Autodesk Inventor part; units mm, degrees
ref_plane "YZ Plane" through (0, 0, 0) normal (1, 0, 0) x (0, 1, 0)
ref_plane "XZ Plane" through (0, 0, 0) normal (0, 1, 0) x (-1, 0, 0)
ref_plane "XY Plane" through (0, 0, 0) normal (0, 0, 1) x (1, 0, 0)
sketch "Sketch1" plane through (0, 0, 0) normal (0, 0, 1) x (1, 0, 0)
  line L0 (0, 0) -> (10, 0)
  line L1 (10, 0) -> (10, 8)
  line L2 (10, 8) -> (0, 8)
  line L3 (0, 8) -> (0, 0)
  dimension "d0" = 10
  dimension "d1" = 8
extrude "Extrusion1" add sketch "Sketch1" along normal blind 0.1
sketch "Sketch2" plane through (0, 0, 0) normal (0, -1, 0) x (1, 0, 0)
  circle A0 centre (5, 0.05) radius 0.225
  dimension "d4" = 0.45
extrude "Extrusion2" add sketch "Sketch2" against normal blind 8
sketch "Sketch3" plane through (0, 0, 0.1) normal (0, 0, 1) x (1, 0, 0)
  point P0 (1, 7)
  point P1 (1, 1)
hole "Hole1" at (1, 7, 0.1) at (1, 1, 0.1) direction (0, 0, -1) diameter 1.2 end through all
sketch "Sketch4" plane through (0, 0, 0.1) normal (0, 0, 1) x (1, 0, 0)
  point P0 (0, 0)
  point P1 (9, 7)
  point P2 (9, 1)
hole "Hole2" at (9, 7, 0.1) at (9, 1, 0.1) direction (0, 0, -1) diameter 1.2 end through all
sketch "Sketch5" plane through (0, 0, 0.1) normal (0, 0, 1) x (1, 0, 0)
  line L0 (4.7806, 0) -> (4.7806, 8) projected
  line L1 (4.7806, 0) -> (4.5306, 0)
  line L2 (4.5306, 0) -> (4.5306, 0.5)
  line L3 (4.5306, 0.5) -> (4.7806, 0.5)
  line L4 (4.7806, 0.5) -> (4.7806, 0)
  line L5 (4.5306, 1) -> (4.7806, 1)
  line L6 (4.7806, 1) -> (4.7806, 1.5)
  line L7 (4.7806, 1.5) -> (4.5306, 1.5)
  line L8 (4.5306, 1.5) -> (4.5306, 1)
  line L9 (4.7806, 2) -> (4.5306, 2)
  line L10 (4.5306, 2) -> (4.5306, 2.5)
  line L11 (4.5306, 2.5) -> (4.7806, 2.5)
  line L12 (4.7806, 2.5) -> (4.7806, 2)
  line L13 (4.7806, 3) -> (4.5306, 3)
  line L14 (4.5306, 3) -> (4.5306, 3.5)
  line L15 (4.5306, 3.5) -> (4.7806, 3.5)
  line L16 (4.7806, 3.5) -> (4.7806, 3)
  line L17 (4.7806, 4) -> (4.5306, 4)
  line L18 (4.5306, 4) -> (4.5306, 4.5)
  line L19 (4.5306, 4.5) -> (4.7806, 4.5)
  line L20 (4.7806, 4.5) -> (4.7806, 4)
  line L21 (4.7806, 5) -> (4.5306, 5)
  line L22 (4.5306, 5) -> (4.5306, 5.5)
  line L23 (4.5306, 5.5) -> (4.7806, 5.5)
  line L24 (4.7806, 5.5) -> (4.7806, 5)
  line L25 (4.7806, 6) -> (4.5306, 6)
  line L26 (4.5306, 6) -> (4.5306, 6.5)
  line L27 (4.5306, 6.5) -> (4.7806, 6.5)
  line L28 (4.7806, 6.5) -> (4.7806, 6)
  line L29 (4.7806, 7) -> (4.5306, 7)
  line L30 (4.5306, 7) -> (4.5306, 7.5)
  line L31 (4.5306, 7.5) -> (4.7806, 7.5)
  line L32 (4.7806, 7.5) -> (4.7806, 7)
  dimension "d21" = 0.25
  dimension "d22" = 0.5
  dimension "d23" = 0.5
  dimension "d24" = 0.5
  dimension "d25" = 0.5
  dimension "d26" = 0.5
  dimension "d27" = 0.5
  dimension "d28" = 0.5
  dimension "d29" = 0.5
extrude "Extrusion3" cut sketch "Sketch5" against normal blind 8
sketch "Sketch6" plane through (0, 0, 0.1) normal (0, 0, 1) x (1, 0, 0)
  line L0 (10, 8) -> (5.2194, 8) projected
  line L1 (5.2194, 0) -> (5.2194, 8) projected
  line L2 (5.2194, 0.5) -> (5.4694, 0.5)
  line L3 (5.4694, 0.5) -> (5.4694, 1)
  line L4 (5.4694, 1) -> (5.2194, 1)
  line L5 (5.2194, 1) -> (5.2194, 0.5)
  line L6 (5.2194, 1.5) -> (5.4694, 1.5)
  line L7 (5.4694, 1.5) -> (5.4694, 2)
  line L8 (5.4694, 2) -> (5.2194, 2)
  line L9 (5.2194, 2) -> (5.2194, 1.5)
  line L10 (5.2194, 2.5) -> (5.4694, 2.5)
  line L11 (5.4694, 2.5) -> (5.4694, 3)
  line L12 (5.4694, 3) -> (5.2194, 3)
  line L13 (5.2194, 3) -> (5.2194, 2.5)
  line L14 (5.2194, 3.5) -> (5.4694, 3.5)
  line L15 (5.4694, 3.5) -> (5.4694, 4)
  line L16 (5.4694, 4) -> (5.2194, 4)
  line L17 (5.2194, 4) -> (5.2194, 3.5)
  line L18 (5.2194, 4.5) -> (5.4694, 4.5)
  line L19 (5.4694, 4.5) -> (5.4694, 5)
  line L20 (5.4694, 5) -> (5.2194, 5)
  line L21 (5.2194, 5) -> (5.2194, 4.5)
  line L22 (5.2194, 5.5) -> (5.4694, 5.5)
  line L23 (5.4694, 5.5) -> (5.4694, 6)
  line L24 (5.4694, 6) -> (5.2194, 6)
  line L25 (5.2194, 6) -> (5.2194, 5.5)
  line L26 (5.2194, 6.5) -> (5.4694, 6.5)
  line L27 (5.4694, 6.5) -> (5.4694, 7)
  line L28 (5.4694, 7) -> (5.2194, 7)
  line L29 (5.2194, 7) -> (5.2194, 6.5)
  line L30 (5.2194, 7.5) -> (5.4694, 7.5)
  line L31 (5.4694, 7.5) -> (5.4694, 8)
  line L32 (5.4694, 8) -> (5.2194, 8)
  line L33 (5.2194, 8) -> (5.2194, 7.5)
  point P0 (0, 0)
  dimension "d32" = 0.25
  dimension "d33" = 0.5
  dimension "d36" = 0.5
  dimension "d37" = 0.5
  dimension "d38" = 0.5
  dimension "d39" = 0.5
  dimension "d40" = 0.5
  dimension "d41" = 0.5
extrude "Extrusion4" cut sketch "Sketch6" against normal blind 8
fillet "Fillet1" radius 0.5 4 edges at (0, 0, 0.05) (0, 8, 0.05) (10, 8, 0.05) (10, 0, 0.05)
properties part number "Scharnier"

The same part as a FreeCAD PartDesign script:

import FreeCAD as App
import Part
import Sketcher
Q = App.Units.Quantity


def edges_at(feature, points):
    """Names of the edges that pass closest to the given points."""
    edges = feature.Shape.Edges
    near = lambda p: min(range(len(edges)), key=lambda i: edges[i].distToShape(Part.Vertex(*p))[0])
    return sorted({f"Edge{near(p) + 1}" for p in points})

doc = App.newDocument("Part")
body = doc.addObject("PartDesign::Body", "Body")

# Sketch on XY plane
sketch1 = doc.addObject("Sketcher::SketchObject", "Sketch")
body.addObject(sketch1)
sketch1.AttachmentSupport = (doc.XY_Plane, [""])
sketch1.MapMode = "FlatFace"
sketch1.addGeometry([
    Part.LineSegment(App.Vector(0, 8, 0), App.Vector(0, 0, 0)),
    Part.LineSegment(App.Vector(0, 0, 0), App.Vector(10, 0, 0)),
    Part.LineSegment(App.Vector(10, 0, 0), App.Vector(10, 8, 0)),
    Part.LineSegment(App.Vector(10, 8, 0), App.Vector(0, 8, 0)),
], False)
sketch1.addConstraint([
    Sketcher.Constraint("Coincident", 0, 2, 1, 1),
    Sketcher.Constraint("Coincident", 1, 2, 2, 1),
    Sketcher.Constraint("Coincident", 2, 2, 3, 1),
    Sketcher.Constraint("Coincident", 3, 2, 0, 1),
    Sketcher.Constraint("Vertical", 0),
    Sketcher.Constraint("Horizontal", 1),
    Sketcher.Constraint("Vertical", 2),
    Sketcher.Constraint("Horizontal", 3),
    Sketcher.Constraint("Coincident", 0, 2, -1, 1),
    Sketcher.Constraint("DistanceX", 1, 1, 1, 2, Q("10 mm")),
    Sketcher.Constraint("DistanceY", 0, 2, 0, 1, Q("8 mm")),
])
pad1 = doc.addObject("PartDesign::Pad", "Pad")
body.addObject(pad1)
pad1.Profile = sketch1
pad1.Length = 0.1

# Sketch on XZ plane
sketch2 = doc.addObject("Sketcher::SketchObject", "Sketch001")
body.addObject(sketch2)
sketch2.AttachmentSupport = (doc.XZ_Plane, [""])
sketch2.MapMode = "FlatFace"
sketch2.addGeometry(Part.Circle(App.Vector(5, 0.05, 0), App.Vector(0, 0, 1), 0.225), False)
sketch2.addConstraint([
    Sketcher.Constraint("Diameter", 0, Q("0.45 mm")),
    Sketcher.Constraint("DistanceX", -1, 1, 0, 3, Q("5 mm")),
    Sketcher.Constraint("DistanceY", -1, 1, 0, 3, Q("0.05 mm")),
])
pad2 = doc.addObject("PartDesign::Pad", "Pad001")
body.addObject(pad2)
pad2.Profile = sketch2
pad2.Length = 8
pad2.Reversed = True

# Sketch on XY plane
sketch3 = doc.addObject("Sketcher::SketchObject", "Sketch002")
body.addObject(sketch3)
sketch3.AttachmentSupport = (doc.XY_Plane, [""])
sketch3.MapMode = "FlatFace"
sketch3.AttachmentOffset = App.Placement(App.Vector(0, 0, 0.1), App.Rotation())
sketch3.addGeometry([
    Part.Circle(App.Vector(1, 7, 0), App.Vector(0, 0, 1), 0.6),
    Part.Circle(App.Vector(1, 1, 0), App.Vector(0, 0, 1), 0.6),
], False)
sketch3.addConstraint([
    Sketcher.Constraint("Equal", 0, 1),
    Sketcher.Constraint("Vertical", 0, 3, 1, 3),
    Sketcher.Constraint("Diameter", 0, Q("1.2 mm")),
    Sketcher.Constraint("DistanceX", -1, 1, 0, 3, Q("1 mm")),
    Sketcher.Constraint("DistanceY", -1, 1, 0, 3, Q("7 mm")),
    Sketcher.Constraint("DistanceY", -1, 1, 1, 3, Q("1 mm")),
])
doc.recompute()
hole = doc.addObject("PartDesign::Hole", "Hole")
body.addObject(hole)
hole.Profile = sketch3
hole.ThreadType = "None"
hole.Diameter = 1.2
hole.DepthType = "ThroughAll"

# Sketch on XY plane
sketch4 = doc.addObject("Sketcher::SketchObject", "Sketch003")
body.addObject(sketch4)
sketch4.AttachmentSupport = (doc.XY_Plane, [""])
sketch4.MapMode = "FlatFace"
sketch4.AttachmentOffset = App.Placement(App.Vector(0, 0, 0.1), App.Rotation())
sketch4.addGeometry([
    Part.Circle(App.Vector(9, 7, 0), App.Vector(0, 0, 1), 0.6),
    Part.Circle(App.Vector(9, 1, 0), App.Vector(0, 0, 1), 0.6),
], False)
sketch4.addConstraint([
    Sketcher.Constraint("Equal", 0, 1),
    Sketcher.Constraint("Vertical", 0, 3, 1, 3),
    Sketcher.Constraint("Diameter", 0, Q("1.2 mm")),
    Sketcher.Constraint("DistanceX", -1, 1, 0, 3, Q("9 mm")),
    Sketcher.Constraint("DistanceY", -1, 1, 0, 3, Q("7 mm")),
    Sketcher.Constraint("DistanceY", -1, 1, 1, 3, Q("1 mm")),
])
doc.recompute()
hole2 = doc.addObject("PartDesign::Hole", "Hole001")
body.addObject(hole2)
hole2.Profile = sketch4
hole2.ThreadType = "None"
hole2.Diameter = 1.2
hole2.DepthType = "ThroughAll"

# Sketch on XY plane
sketch5 = doc.addObject("Sketcher::SketchObject", "Sketch004")
body.addObject(sketch5)
sketch5.AttachmentSupport = (doc.XY_Plane, [""])
sketch5.MapMode = "FlatFace"
sketch5.AttachmentOffset = App.Placement(App.Vector(0, 0, 0.1), App.Rotation())
sketch5.addGeometry([
    Part.LineSegment(App.Vector(4.5306, 0, 0), App.Vector(4.7806, 0, 0)),  # 0
    Part.LineSegment(App.Vector(4.7806, 0, 0), App.Vector(4.7806, 0.5, 0)),  # 1
    Part.LineSegment(App.Vector(4.7806, 0.5, 0), App.Vector(4.5306, 0.5, 0)),  # 2
    Part.LineSegment(App.Vector(4.5306, 0.5, 0), App.Vector(4.5306, 0, 0)),  # 3
    Part.LineSegment(App.Vector(4.5306, 7, 0), App.Vector(4.7806, 7, 0)),  # 4
    Part.LineSegment(App.Vector(4.7806, 7, 0), App.Vector(4.7806, 7.5, 0)),  # 5
    Part.LineSegment(App.Vector(4.7806, 7.5, 0), App.Vector(4.5306, 7.5, 0)),  # 6
    Part.LineSegment(App.Vector(4.5306, 7.5, 0), App.Vector(4.5306, 7, 0)),  # 7
    Part.LineSegment(App.Vector(4.5306, 6, 0), App.Vector(4.7806, 6, 0)),  # 8
    Part.LineSegment(App.Vector(4.7806, 6, 0), App.Vector(4.7806, 6.5, 0)),  # 9
    Part.LineSegment(App.Vector(4.7806, 6.5, 0), App.Vector(4.5306, 6.5, 0)),  # 10
    Part.LineSegment(App.Vector(4.5306, 6.5, 0), App.Vector(4.5306, 6, 0)),  # 11
    Part.LineSegment(App.Vector(4.5306, 5, 0), App.Vector(4.7806, 5, 0)),  # 12
    Part.LineSegment(App.Vector(4.7806, 5, 0), App.Vector(4.7806, 5.5, 0)),  # 13
    Part.LineSegment(App.Vector(4.7806, 5.5, 0), App.Vector(4.5306, 5.5, 0)),  # 14
    Part.LineSegment(App.Vector(4.5306, 5.5, 0), App.Vector(4.5306, 5, 0)),  # 15
    Part.LineSegment(App.Vector(4.5306, 4, 0), App.Vector(4.7806, 4, 0)),  # 16
    Part.LineSegment(App.Vector(4.7806, 4, 0), App.Vector(4.7806, 4.5, 0)),  # 17
    Part.LineSegment(App.Vector(4.7806, 4.5, 0), App.Vector(4.5306, 4.5, 0)),  # 18
    Part.LineSegment(App.Vector(4.5306, 4.5, 0), App.Vector(4.5306, 4, 0)),  # 19
    Part.LineSegment(App.Vector(4.5306, 3, 0), App.Vector(4.7806, 3, 0)),  # 20
    Part.LineSegment(App.Vector(4.7806, 3, 0), App.Vector(4.7806, 3.5, 0)),  # 21
    Part.LineSegment(App.Vector(4.7806, 3.5, 0), App.Vector(4.5306, 3.5, 0)),  # 22
    Part.LineSegment(App.Vector(4.5306, 3.5, 0), App.Vector(4.5306, 3, 0)),  # 23
    Part.LineSegment(App.Vector(4.5306, 2, 0), App.Vector(4.7806, 2, 0)),  # 24
    Part.LineSegment(App.Vector(4.7806, 2, 0), App.Vector(4.7806, 2.5, 0)),  # 25
    Part.LineSegment(App.Vector(4.7806, 2.5, 0), App.Vector(4.5306, 2.5, 0)),  # 26
    Part.LineSegment(App.Vector(4.5306, 2.5, 0), App.Vector(4.5306, 2, 0)),  # 27
    Part.LineSegment(App.Vector(4.5306, 1, 0), App.Vector(4.7806, 1, 0)),  # 28
    Part.LineSegment(App.Vector(4.7806, 1, 0), App.Vector(4.7806, 1.5, 0)),  # 29
    Part.LineSegment(App.Vector(4.7806, 1.5, 0), App.Vector(4.5306, 1.5, 0)),  # 30
    Part.LineSegment(App.Vector(4.5306, 1.5, 0), App.Vector(4.5306, 1, 0)),  # 31
], False)
sketch5.addConstraint([
    Sketcher.Constraint("Coincident", 0, 2, 1, 1),
    Sketcher.Constraint("Coincident", 1, 2, 2, 1),
    Sketcher.Constraint("Coincident", 2, 2, 3, 1),
    Sketcher.Constraint("Coincident", 3, 2, 0, 1),
    Sketcher.Constraint("Coincident", 4, 2, 5, 1),
    Sketcher.Constraint("Coincident", 5, 2, 6, 1),
    Sketcher.Constraint("Coincident", 6, 2, 7, 1),
    Sketcher.Constraint("Coincident", 7, 2, 4, 1),
    Sketcher.Constraint("Coincident", 8, 2, 9, 1),
    Sketcher.Constraint("Coincident", 9, 2, 10, 1),
    Sketcher.Constraint("Coincident", 10, 2, 11, 1),
    Sketcher.Constraint("Coincident", 11, 2, 8, 1),
    Sketcher.Constraint("Coincident", 12, 2, 13, 1),
    Sketcher.Constraint("Coincident", 13, 2, 14, 1),
    Sketcher.Constraint("Coincident", 14, 2, 15, 1),
    Sketcher.Constraint("Coincident", 15, 2, 12, 1),
    Sketcher.Constraint("Coincident", 16, 2, 17, 1),
    Sketcher.Constraint("Coincident", 17, 2, 18, 1),
    Sketcher.Constraint("Coincident", 18, 2, 19, 1),
    Sketcher.Constraint("Coincident", 19, 2, 16, 1),
    Sketcher.Constraint("Coincident", 20, 2, 21, 1),
    Sketcher.Constraint("Coincident", 21, 2, 22, 1),
    Sketcher.Constraint("Coincident", 22, 2, 23, 1),
    Sketcher.Constraint("Coincident", 23, 2, 20, 1),
    Sketcher.Constraint("Coincident", 24, 2, 25, 1),
    Sketcher.Constraint("Coincident", 25, 2, 26, 1),
    Sketcher.Constraint("Coincident", 26, 2, 27, 1),
    Sketcher.Constraint("Coincident", 27, 2, 24, 1),
    Sketcher.Constraint("Coincident", 28, 2, 29, 1),
    Sketcher.Constraint("Coincident", 29, 2, 30, 1),
    Sketcher.Constraint("Coincident", 30, 2, 31, 1),
    Sketcher.Constraint("Coincident", 31, 2, 28, 1),
    Sketcher.Constraint("Horizontal", 0),
    Sketcher.Constraint("Vertical", 1),
    Sketcher.Constraint("Horizontal", 2),
    Sketcher.Constraint("Vertical", 3),
    Sketcher.Constraint("Horizontal", 4),
    Sketcher.Constraint("Vertical", 5),
    Sketcher.Constraint("Horizontal", 6),
    Sketcher.Constraint("Vertical", 7),
    Sketcher.Constraint("Horizontal", 8),
    Sketcher.Constraint("Vertical", 9),
    Sketcher.Constraint("Horizontal", 10),
    Sketcher.Constraint("Vertical", 11),
    Sketcher.Constraint("Horizontal", 12),
    Sketcher.Constraint("Vertical", 13),
    Sketcher.Constraint("Horizontal", 14),
    Sketcher.Constraint("Vertical", 15),
    Sketcher.Constraint("Horizontal", 16),
    Sketcher.Constraint("Vertical", 17),
    Sketcher.Constraint("Horizontal", 18),
    Sketcher.Constraint("Vertical", 19),
    Sketcher.Constraint("Horizontal", 20),
    Sketcher.Constraint("Vertical", 21),
    Sketcher.Constraint("Horizontal", 22),
    Sketcher.Constraint("Vertical", 23),
    Sketcher.Constraint("Horizontal", 24),
    Sketcher.Constraint("Vertical", 25),
    Sketcher.Constraint("Horizontal", 26),
    Sketcher.Constraint("Vertical", 27),
    Sketcher.Constraint("Horizontal", 28),
    Sketcher.Constraint("Vertical", 29),
    Sketcher.Constraint("Horizontal", 30),
    Sketcher.Constraint("Vertical", 31),
    Sketcher.Constraint("PointOnObject", 0, 2, -1),
    Sketcher.Constraint("Vertical", 1, 2, 4, 2),
    Sketcher.Constraint("Vertical", 3, 2, 6, 2),
    Sketcher.Constraint("Vertical", 5, 2, 8, 2),
    Sketcher.Constraint("Vertical", 7, 2, 10, 2),
    Sketcher.Constraint("Vertical", 9, 2, 12, 2),
    Sketcher.Constraint("Vertical", 11, 2, 14, 2),
    Sketcher.Constraint("Vertical", 13, 2, 16, 2),
    Sketcher.Constraint("Vertical", 15, 2, 18, 2),
    Sketcher.Constraint("Vertical", 17, 2, 20, 2),
    Sketcher.Constraint("Vertical", 19, 2, 22, 2),
    Sketcher.Constraint("Vertical", 21, 2, 24, 2),
    Sketcher.Constraint("Vertical", 23, 2, 26, 2),
    Sketcher.Constraint("Vertical", 25, 2, 28, 2),
    Sketcher.Constraint("Vertical", 27, 2, 30, 2),
    Sketcher.Constraint("Equal", 3, 5),
    Sketcher.Constraint("Equal", 7, 9),
    Sketcher.Constraint("Equal", 11, 13),
    Sketcher.Constraint("Equal", 15, 17),
    Sketcher.Constraint("Equal", 19, 21),
    Sketcher.Constraint("Equal", 23, 25),
    Sketcher.Constraint("Equal", 27, 29),
    Sketcher.Constraint("DistanceY", 1, 1, 1, 2, Q("0.5 mm")),
    Sketcher.Constraint("DistanceX", 0, 1, 0, 2, Q("0.25 mm")),
    Sketcher.Constraint("DistanceY", 9, 2, 4, 2, Q("0.5 mm")),
    Sketcher.Constraint("DistanceY", 13, 2, 8, 2, Q("0.5 mm")),
    Sketcher.Constraint("DistanceY", 17, 2, 12, 2, Q("0.5 mm")),
    Sketcher.Constraint("DistanceY", 21, 2, 16, 2, Q("0.5 mm")),
    Sketcher.Constraint("DistanceY", 25, 2, 20, 2, Q("0.5 mm")),
    Sketcher.Constraint("DistanceY", 1, 2, 28, 2, Q("0.5 mm")),
    Sketcher.Constraint("DistanceY", 29, 2, 24, 2, Q("0.5 mm")),
    Sketcher.Constraint("DistanceX", -1, 1, 0, 2, Q("4.7806 mm")),
])
pocket1 = doc.addObject("PartDesign::Pocket", "Pocket")
body.addObject(pocket1)
pocket1.Profile = sketch5
pocket1.Length = 8

# Sketch on XY plane
sketch6 = doc.addObject("Sketcher::SketchObject", "Sketch005")
body.addObject(sketch6)
sketch6.AttachmentSupport = (doc.XY_Plane, [""])
sketch6.MapMode = "FlatFace"
sketch6.AttachmentOffset = App.Placement(App.Vector(0, 0, 0.1), App.Rotation())
sketch6.addGeometry([
    Part.LineSegment(App.Vector(5.4694, 7.5, 0), App.Vector(5.4694, 8, 0)),  # 0
    Part.LineSegment(App.Vector(5.4694, 8, 0), App.Vector(5.2194, 8, 0)),  # 1
    Part.LineSegment(App.Vector(5.2194, 8, 0), App.Vector(5.2194, 7.5, 0)),  # 2
    Part.LineSegment(App.Vector(5.2194, 7.5, 0), App.Vector(5.4694, 7.5, 0)),  # 3
    Part.LineSegment(App.Vector(5.4694, 1, 0), App.Vector(5.2194, 1, 0)),  # 4
    Part.LineSegment(App.Vector(5.2194, 1, 0), App.Vector(5.2194, 0.5, 0)),  # 5
    Part.LineSegment(App.Vector(5.2194, 0.5, 0), App.Vector(5.4694, 0.5, 0)),  # 6
    Part.LineSegment(App.Vector(5.4694, 0.5, 0), App.Vector(5.4694, 1, 0)),  # 7
    Part.LineSegment(App.Vector(5.4694, 2, 0), App.Vector(5.2194, 2, 0)),  # 8
    Part.LineSegment(App.Vector(5.2194, 2, 0), App.Vector(5.2194, 1.5, 0)),  # 9
    Part.LineSegment(App.Vector(5.2194, 1.5, 0), App.Vector(5.4694, 1.5, 0)),  # 10
    Part.LineSegment(App.Vector(5.4694, 1.5, 0), App.Vector(5.4694, 2, 0)),  # 11
    Part.LineSegment(App.Vector(5.4694, 3, 0), App.Vector(5.2194, 3, 0)),  # 12
    Part.LineSegment(App.Vector(5.2194, 3, 0), App.Vector(5.2194, 2.5, 0)),  # 13
    Part.LineSegment(App.Vector(5.2194, 2.5, 0), App.Vector(5.4694, 2.5, 0)),  # 14
    Part.LineSegment(App.Vector(5.4694, 2.5, 0), App.Vector(5.4694, 3, 0)),  # 15
    Part.LineSegment(App.Vector(5.4694, 4, 0), App.Vector(5.2194, 4, 0)),  # 16
    Part.LineSegment(App.Vector(5.2194, 4, 0), App.Vector(5.2194, 3.5, 0)),  # 17
    Part.LineSegment(App.Vector(5.2194, 3.5, 0), App.Vector(5.4694, 3.5, 0)),  # 18
    Part.LineSegment(App.Vector(5.4694, 3.5, 0), App.Vector(5.4694, 4, 0)),  # 19
    Part.LineSegment(App.Vector(5.4694, 5, 0), App.Vector(5.2194, 5, 0)),  # 20
    Part.LineSegment(App.Vector(5.2194, 5, 0), App.Vector(5.2194, 4.5, 0)),  # 21
    Part.LineSegment(App.Vector(5.2194, 4.5, 0), App.Vector(5.4694, 4.5, 0)),  # 22
    Part.LineSegment(App.Vector(5.4694, 4.5, 0), App.Vector(5.4694, 5, 0)),  # 23
    Part.LineSegment(App.Vector(5.4694, 6, 0), App.Vector(5.2194, 6, 0)),  # 24
    Part.LineSegment(App.Vector(5.2194, 6, 0), App.Vector(5.2194, 5.5, 0)),  # 25
    Part.LineSegment(App.Vector(5.2194, 5.5, 0), App.Vector(5.4694, 5.5, 0)),  # 26
    Part.LineSegment(App.Vector(5.4694, 5.5, 0), App.Vector(5.4694, 6, 0)),  # 27
    Part.LineSegment(App.Vector(5.4694, 7, 0), App.Vector(5.2194, 7, 0)),  # 28
    Part.LineSegment(App.Vector(5.2194, 7, 0), App.Vector(5.2194, 6.5, 0)),  # 29
    Part.LineSegment(App.Vector(5.2194, 6.5, 0), App.Vector(5.4694, 6.5, 0)),  # 30
    Part.LineSegment(App.Vector(5.4694, 6.5, 0), App.Vector(5.4694, 7, 0)),  # 31
], False)
sketch6.addConstraint([
    Sketcher.Constraint("Coincident", 0, 2, 1, 1),
    Sketcher.Constraint("Coincident", 1, 2, 2, 1),
    Sketcher.Constraint("Coincident", 2, 2, 3, 1),
    Sketcher.Constraint("Coincident", 3, 2, 0, 1),
    Sketcher.Constraint("Coincident", 4, 2, 5, 1),
    Sketcher.Constraint("Coincident", 5, 2, 6, 1),
    Sketcher.Constraint("Coincident", 6, 2, 7, 1),
    Sketcher.Constraint("Coincident", 7, 2, 4, 1),
    Sketcher.Constraint("Coincident", 8, 2, 9, 1),
    Sketcher.Constraint("Coincident", 9, 2, 10, 1),
    Sketcher.Constraint("Coincident", 10, 2, 11, 1),
    Sketcher.Constraint("Coincident", 11, 2, 8, 1),
    Sketcher.Constraint("Coincident", 12, 2, 13, 1),
    Sketcher.Constraint("Coincident", 13, 2, 14, 1),
    Sketcher.Constraint("Coincident", 14, 2, 15, 1),
    Sketcher.Constraint("Coincident", 15, 2, 12, 1),
    Sketcher.Constraint("Coincident", 16, 2, 17, 1),
    Sketcher.Constraint("Coincident", 17, 2, 18, 1),
    Sketcher.Constraint("Coincident", 18, 2, 19, 1),
    Sketcher.Constraint("Coincident", 19, 2, 16, 1),
    Sketcher.Constraint("Coincident", 20, 2, 21, 1),
    Sketcher.Constraint("Coincident", 21, 2, 22, 1),
    Sketcher.Constraint("Coincident", 22, 2, 23, 1),
    Sketcher.Constraint("Coincident", 23, 2, 20, 1),
    Sketcher.Constraint("Coincident", 24, 2, 25, 1),
    Sketcher.Constraint("Coincident", 25, 2, 26, 1),
    Sketcher.Constraint("Coincident", 26, 2, 27, 1),
    Sketcher.Constraint("Coincident", 27, 2, 24, 1),
    Sketcher.Constraint("Coincident", 28, 2, 29, 1),
    Sketcher.Constraint("Coincident", 29, 2, 30, 1),
    Sketcher.Constraint("Coincident", 30, 2, 31, 1),
    Sketcher.Constraint("Coincident", 31, 2, 28, 1),
    Sketcher.Constraint("Vertical", 0),
    Sketcher.Constraint("Horizontal", 1),
    Sketcher.Constraint("Vertical", 2),
    Sketcher.Constraint("Horizontal", 3),
    Sketcher.Constraint("Horizontal", 4),
    Sketcher.Constraint("Vertical", 5),
    Sketcher.Constraint("Horizontal", 6),
    Sketcher.Constraint("Vertical", 7),
    Sketcher.Constraint("Horizontal", 8),
    Sketcher.Constraint("Vertical", 9),
    Sketcher.Constraint("Horizontal", 10),
    Sketcher.Constraint("Vertical", 11),
    Sketcher.Constraint("Horizontal", 12),
    Sketcher.Constraint("Vertical", 13),
    Sketcher.Constraint("Horizontal", 14),
    Sketcher.Constraint("Vertical", 15),
    Sketcher.Constraint("Horizontal", 16),
    Sketcher.Constraint("Vertical", 17),
    Sketcher.Constraint("Horizontal", 18),
    Sketcher.Constraint("Vertical", 19),
    Sketcher.Constraint("Horizontal", 20),
    Sketcher.Constraint("Vertical", 21),
    Sketcher.Constraint("Horizontal", 22),
    Sketcher.Constraint("Vertical", 23),
    Sketcher.Constraint("Horizontal", 24),
    Sketcher.Constraint("Vertical", 25),
    Sketcher.Constraint("Horizontal", 26),
    Sketcher.Constraint("Vertical", 27),
    Sketcher.Constraint("Horizontal", 28),
    Sketcher.Constraint("Vertical", 29),
    Sketcher.Constraint("Horizontal", 30),
    Sketcher.Constraint("Vertical", 31),
    Sketcher.Constraint("Vertical", 2, 2, 4, 2),
    Sketcher.Constraint("Vertical", 3, 2, 6, 2),
    Sketcher.Constraint("Vertical", 5, 2, 8, 2),
    Sketcher.Constraint("Vertical", 7, 2, 10, 2),
    Sketcher.Constraint("Vertical", 9, 2, 12, 2),
    Sketcher.Constraint("Vertical", 11, 2, 14, 2),
    Sketcher.Constraint("Vertical", 13, 2, 16, 2),
    Sketcher.Constraint("Vertical", 15, 2, 18, 2),
    Sketcher.Constraint("Vertical", 17, 2, 20, 2),
    Sketcher.Constraint("Vertical", 19, 2, 22, 2),
    Sketcher.Constraint("Vertical", 21, 2, 24, 2),
    Sketcher.Constraint("Vertical", 23, 2, 26, 2),
    Sketcher.Constraint("Vertical", 25, 2, 28, 2),
    Sketcher.Constraint("Vertical", 27, 2, 30, 2),
    Sketcher.Constraint("Equal", 2, 5),
    Sketcher.Constraint("Equal", 7, 9),
    Sketcher.Constraint("Equal", 11, 13),
    Sketcher.Constraint("Equal", 15, 17),
    Sketcher.Constraint("Equal", 19, 21),
    Sketcher.Constraint("Equal", 23, 25),
    Sketcher.Constraint("Equal", 27, 29),
    Sketcher.Constraint("DistanceY", 0, 1, 0, 2, Q("0.5 mm")),
    Sketcher.Constraint("DistanceX", 1, 2, 1, 1, Q("0.25 mm")),
    Sketcher.Constraint("DistanceY", -1, 1, 5, 2, Q("0.5 mm")),
    Sketcher.Constraint("DistanceY", 4, 2, 9, 2, Q("0.5 mm")),
    Sketcher.Constraint("DistanceY", 8, 2, 13, 2, Q("0.5 mm")),
    Sketcher.Constraint("DistanceY", 12, 2, 17, 2, Q("0.5 mm")),
    Sketcher.Constraint("DistanceY", 16, 2, 21, 2, Q("0.5 mm")),
    Sketcher.Constraint("DistanceY", 20, 2, 25, 2, Q("0.5 mm")),
    Sketcher.Constraint("DistanceY", 28, 2, 2, 2, Q("0.5 mm")),
    Sketcher.Constraint("DistanceY", 24, 2, 29, 2, Q("0.5 mm")),
    Sketcher.Constraint("DistanceX", -1, 1, 0, 2, Q("5.4694 mm")),
])
pocket2 = doc.addObject("PartDesign::Pocket", "Pocket001")
body.addObject(pocket2)
pocket2.Profile = sketch6
pocket2.Length = 8
doc.recompute()

fillet = doc.addObject("PartDesign::Fillet", "Fillet")
body.addObject(fillet)
fillet.Base = (pocket2, edges_at(pocket2, [
    (0, 0, 0.05),
    (0, 8, 0.05),
    (10, 8, 0.05),
    (10, 0, 0.05),
]))
fillet.Radius = 0.5

doc.recompute()
